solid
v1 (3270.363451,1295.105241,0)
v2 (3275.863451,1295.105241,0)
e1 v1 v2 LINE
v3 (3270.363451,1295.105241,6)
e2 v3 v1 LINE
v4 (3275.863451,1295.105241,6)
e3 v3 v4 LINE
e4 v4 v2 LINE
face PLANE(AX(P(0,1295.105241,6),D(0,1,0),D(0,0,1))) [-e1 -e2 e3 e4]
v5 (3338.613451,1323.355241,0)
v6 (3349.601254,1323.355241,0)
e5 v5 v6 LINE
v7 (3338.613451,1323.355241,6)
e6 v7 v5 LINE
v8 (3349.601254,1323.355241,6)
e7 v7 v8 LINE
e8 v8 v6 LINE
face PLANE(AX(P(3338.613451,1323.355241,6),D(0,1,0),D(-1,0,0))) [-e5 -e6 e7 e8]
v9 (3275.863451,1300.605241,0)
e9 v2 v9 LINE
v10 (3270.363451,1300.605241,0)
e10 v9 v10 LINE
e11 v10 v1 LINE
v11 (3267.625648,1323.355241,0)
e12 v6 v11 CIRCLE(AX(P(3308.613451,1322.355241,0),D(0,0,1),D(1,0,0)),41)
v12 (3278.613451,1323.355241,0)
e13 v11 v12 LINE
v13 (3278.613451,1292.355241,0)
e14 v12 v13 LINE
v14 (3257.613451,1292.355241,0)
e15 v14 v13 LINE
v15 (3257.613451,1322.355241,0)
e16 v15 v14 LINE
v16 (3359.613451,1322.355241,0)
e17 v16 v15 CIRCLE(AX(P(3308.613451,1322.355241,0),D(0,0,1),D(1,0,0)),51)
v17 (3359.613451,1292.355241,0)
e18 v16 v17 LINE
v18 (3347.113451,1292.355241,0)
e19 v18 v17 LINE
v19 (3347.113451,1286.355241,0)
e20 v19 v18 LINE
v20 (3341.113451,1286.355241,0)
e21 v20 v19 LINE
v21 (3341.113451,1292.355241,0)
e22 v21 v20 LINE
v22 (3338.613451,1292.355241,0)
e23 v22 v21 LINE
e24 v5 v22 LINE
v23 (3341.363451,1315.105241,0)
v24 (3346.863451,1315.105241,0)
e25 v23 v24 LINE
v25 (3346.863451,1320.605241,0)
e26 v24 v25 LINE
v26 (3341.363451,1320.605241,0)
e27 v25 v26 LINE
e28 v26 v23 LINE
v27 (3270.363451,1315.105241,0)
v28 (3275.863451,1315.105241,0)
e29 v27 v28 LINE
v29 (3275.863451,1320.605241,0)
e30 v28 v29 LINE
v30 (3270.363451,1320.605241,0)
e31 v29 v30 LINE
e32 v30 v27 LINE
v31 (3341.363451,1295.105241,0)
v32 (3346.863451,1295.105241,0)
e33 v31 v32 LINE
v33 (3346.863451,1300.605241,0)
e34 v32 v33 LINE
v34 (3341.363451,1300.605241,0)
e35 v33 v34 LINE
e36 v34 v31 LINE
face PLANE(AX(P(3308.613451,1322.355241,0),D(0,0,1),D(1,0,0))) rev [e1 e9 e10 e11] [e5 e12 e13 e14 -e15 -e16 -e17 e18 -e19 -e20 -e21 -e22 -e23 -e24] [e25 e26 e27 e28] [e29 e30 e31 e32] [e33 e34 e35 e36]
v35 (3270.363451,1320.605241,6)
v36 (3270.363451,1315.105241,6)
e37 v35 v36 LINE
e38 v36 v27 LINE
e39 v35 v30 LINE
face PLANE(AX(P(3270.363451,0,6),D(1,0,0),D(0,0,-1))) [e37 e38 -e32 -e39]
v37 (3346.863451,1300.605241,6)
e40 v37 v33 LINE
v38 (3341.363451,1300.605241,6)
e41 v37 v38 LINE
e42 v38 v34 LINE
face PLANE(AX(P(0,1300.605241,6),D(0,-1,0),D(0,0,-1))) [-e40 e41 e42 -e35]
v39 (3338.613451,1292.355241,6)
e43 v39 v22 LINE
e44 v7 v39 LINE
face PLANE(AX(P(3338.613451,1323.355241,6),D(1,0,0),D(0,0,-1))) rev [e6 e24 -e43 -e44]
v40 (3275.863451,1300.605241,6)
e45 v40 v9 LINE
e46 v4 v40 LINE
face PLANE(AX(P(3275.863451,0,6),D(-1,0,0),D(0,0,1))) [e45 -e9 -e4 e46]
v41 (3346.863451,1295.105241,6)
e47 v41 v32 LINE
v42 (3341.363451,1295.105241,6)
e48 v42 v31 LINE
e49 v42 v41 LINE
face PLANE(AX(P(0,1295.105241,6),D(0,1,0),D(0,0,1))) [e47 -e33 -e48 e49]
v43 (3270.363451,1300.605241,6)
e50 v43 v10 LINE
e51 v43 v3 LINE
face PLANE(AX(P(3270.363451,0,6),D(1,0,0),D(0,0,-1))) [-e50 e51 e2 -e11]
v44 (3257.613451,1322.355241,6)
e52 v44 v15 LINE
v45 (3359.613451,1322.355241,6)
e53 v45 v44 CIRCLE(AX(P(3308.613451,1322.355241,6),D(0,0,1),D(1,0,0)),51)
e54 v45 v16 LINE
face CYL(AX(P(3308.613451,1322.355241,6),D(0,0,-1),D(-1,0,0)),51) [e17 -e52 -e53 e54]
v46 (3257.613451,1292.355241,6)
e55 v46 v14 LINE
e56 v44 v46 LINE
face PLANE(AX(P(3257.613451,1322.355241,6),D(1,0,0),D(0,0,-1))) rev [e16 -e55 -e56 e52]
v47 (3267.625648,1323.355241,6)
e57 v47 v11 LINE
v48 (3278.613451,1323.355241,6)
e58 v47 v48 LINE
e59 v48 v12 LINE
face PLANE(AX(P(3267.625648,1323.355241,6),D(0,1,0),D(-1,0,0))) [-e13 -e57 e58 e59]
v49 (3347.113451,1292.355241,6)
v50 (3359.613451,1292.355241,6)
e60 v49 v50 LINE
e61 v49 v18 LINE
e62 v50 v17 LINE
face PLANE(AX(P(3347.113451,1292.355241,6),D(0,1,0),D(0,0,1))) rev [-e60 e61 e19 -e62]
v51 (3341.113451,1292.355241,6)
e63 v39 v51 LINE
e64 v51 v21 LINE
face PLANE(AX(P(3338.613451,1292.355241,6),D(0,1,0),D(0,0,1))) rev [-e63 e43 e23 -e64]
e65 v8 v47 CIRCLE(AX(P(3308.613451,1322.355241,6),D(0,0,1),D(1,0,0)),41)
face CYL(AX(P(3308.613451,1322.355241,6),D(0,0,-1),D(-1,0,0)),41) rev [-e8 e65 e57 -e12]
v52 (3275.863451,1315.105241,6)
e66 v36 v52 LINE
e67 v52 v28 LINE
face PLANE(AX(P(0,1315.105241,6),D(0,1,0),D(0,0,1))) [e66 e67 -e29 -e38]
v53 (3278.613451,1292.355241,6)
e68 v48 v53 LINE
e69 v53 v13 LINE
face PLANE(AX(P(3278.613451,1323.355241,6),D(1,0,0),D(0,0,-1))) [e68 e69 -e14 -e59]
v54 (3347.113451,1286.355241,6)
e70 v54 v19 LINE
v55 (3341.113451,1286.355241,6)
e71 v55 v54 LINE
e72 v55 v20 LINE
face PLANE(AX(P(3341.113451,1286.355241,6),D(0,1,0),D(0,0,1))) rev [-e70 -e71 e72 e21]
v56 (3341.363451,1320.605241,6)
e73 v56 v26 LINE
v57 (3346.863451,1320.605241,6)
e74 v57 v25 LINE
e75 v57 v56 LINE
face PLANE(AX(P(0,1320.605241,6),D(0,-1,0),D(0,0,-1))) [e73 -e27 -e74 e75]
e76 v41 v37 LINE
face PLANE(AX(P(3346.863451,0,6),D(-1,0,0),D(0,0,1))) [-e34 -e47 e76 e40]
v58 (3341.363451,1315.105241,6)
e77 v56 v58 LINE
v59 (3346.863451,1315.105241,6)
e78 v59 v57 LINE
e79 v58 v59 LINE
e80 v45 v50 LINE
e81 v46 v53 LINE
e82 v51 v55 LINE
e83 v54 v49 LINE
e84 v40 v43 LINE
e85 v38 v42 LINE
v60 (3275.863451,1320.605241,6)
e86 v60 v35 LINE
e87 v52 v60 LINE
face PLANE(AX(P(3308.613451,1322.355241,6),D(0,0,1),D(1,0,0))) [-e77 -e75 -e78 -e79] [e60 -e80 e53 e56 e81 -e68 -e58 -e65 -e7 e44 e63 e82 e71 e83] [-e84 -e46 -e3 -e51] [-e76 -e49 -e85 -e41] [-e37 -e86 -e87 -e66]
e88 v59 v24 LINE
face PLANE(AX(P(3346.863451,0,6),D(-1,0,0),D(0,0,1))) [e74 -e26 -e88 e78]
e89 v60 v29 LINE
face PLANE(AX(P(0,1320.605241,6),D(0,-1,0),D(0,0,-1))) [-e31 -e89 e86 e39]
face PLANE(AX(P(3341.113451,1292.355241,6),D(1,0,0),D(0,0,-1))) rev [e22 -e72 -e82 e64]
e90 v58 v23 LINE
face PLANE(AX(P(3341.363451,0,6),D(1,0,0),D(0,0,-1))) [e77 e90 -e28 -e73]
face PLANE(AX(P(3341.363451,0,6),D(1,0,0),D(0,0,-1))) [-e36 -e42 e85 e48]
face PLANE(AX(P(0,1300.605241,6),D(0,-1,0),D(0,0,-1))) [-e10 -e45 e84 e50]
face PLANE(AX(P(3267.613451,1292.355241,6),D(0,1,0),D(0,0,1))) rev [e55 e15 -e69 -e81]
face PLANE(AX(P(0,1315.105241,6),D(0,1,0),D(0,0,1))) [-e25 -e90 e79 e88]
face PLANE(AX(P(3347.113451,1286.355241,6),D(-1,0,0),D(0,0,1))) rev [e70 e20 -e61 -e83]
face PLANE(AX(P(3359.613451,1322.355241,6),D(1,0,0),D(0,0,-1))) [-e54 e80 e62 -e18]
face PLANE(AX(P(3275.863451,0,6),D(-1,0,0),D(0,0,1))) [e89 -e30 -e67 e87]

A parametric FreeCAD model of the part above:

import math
import FreeCAD as App
import Part
import Sketcher
Q = App.Units.Quantity

doc = App.newDocument("Part")
body = doc.addObject("PartDesign::Body", "Body")

sketch1 = doc.addObject("Sketcher::SketchObject", "Sketch")
body.addObject(sketch1)
sketch1.AttachmentSupport = (doc.XY_Plane, [""])
sketch1.MapMode = "FlatFace"
sketch1.addGeometry([
    Part.LineSegment(App.Vector(3257.6, 1322.4, 0), App.Vector(3257.6, 1292.4, 0)),
    Part.LineSegment(App.Vector(3257.6, 1292.4, 0), App.Vector(3278.6, 1292.4, 0)),
    Part.LineSegment(App.Vector(3278.6, 1292.4, 0), App.Vector(3278.6, 1323.4, 0)),
    Part.LineSegment(App.Vector(3278.6, 1323.4, 0), App.Vector(3267.6, 1323.4, 0)),
    Part.ArcOfCircle(Part.Circle(App.Vector(3308.6, 1322.4, 0), App.Vector(0, 0, 1), 41), math.radians(1), math.radians(179)),
    Part.LineSegment(App.Vector(3349.6, 1323.4, 0), App.Vector(3338.6, 1323.4, 0)),
    Part.LineSegment(App.Vector(3338.6, 1323.4, 0), App.Vector(3338.6, 1292.4, 0)),
    Part.LineSegment(App.Vector(3338.6, 1292.4, 0), App.Vector(3341.1, 1292.4, 0)),
    Part.LineSegment(App.Vector(3341.1, 1292.4, 0), App.Vector(3341.1, 1286.4, 0)),
    Part.LineSegment(App.Vector(3341.1, 1286.4, 0), App.Vector(3347.1, 1286.4, 0)),
    Part.LineSegment(App.Vector(3347.1, 1286.4, 0), App.Vector(3347.1, 1292.4, 0)),
    Part.LineSegment(App.Vector(3347.1, 1292.4, 0), App.Vector(3359.6, 1292.4, 0)),
    Part.LineSegment(App.Vector(3359.6, 1292.4, 0), App.Vector(3359.6, 1322.4, 0)),
    Part.ArcOfCircle(Part.Circle(App.Vector(3308.6, 1322.4, 0), App.Vector(0, 0, 1), 51), math.radians(0), math.radians(180)),
    Part.LineSegment(App.Vector(3275.9, 1295.1, 0), App.Vector(3270.4, 1295.1, 0)),
    Part.LineSegment(App.Vector(3270.4, 1295.1, 0), App.Vector(3270.4, 1300.6, 0)),
    Part.LineSegment(App.Vector(3270.4, 1300.6, 0), App.Vector(3275.9, 1300.6, 0)),
    Part.LineSegment(App.Vector(3275.9, 1300.6, 0), App.Vector(3275.9, 1295.1, 0)),
    Part.LineSegment(App.Vector(3346.9, 1295.1, 0), App.Vector(3341.4, 1295.1, 0)),
    Part.LineSegment(App.Vector(3341.4, 1295.1, 0), App.Vector(3341.4, 1300.6, 0)),
    Part.LineSegment(App.Vector(3341.4, 1300.6, 0), App.Vector(3346.9, 1300.6, 0)),
    Part.LineSegment(App.Vector(3346.9, 1300.6, 0), App.Vector(3346.9, 1295.1, 0)),
    Part.LineSegment(App.Vector(3275.9, 1315.1, 0), App.Vector(3270.4, 1315.1, 0)),
    Part.LineSegment(App.Vector(3270.4, 1315.1, 0), App.Vector(3270.4, 1320.6, 0)),
    Part.LineSegment(App.Vector(3270.4, 1320.6, 0), App.Vector(3275.9, 1320.6, 0)),
    Part.LineSegment(App.Vector(3275.9, 1320.6, 0), App.Vector(3275.9, 1315.1, 0)),
    Part.LineSegment(App.Vector(3346.9, 1315.1, 0), App.Vector(3341.4, 1315.1, 0)),
    Part.LineSegment(App.Vector(3341.4, 1315.1, 0), App.Vector(3341.4, 1320.6, 0)),
    Part.LineSegment(App.Vector(3341.4, 1320.6, 0), App.Vector(3346.9, 1320.6, 0)),
    Part.LineSegment(App.Vector(3346.9, 1320.6, 0), App.Vector(3346.9, 1315.1, 0)),
], False)
sketch1.addConstraint([
    Sketcher.Constraint("Coincident", 0, 2, 1, 1),
    Sketcher.Constraint("Coincident", 1, 2, 2, 1),
    Sketcher.Constraint("Coincident", 2, 2, 3, 1),
    Sketcher.Constraint("Coincident", 3, 2, 4, 2),
    Sketcher.Constraint("Coincident", 4, 1, 5, 1),
    Sketcher.Constraint("Coincident", 5, 2, 6, 1),
    Sketcher.Constraint("Coincident", 6, 2, 7, 1),
    Sketcher.Constraint("Coincident", 7, 2, 8, 1),
    Sketcher.Constraint("Coincident", 8, 2, 9, 1),
    Sketcher.Constraint("Coincident", 9, 2, 10, 1),
    Sketcher.Constraint("Coincident", 10, 2, 11, 1),
    Sketcher.Constraint("Coincident", 11, 2, 12, 1),
    Sketcher.Constraint("Tangent", 12, 2, 13, 1),
    Sketcher.Constraint("Tangent", 13, 2, 0, 1),
    Sketcher.Constraint("Coincident", 14, 2, 15, 1),
    Sketcher.Constraint("Coincident", 15, 2, 16, 1),
    Sketcher.Constraint("Coincident", 16, 2, 17, 1),
    Sketcher.Constraint("Coincident", 17, 2, 14, 1),
    Sketcher.Constraint("Coincident", 18, 2, 19, 1),
    Sketcher.Constraint("Coincident", 19, 2, 20, 1),
    Sketcher.Constraint("Coincident", 20, 2, 21, 1),
    Sketcher.Constraint("Coincident", 21, 2, 18, 1),
    Sketcher.Constraint("Coincident", 22, 2, 23, 1),
    Sketcher.Constraint("Coincident", 23, 2, 24, 1),
    Sketcher.Constraint("Coincident", 24, 2, 25, 1),
    Sketcher.Constraint("Coincident", 25, 2, 22, 1),
    Sketcher.Constraint("Coincident", 26, 2, 27, 1),
    Sketcher.Constraint("Coincident", 27, 2, 28, 1),
    Sketcher.Constraint("Coincident", 28, 2, 29, 1),
    Sketcher.Constraint("Coincident", 29, 2, 26, 1),
    Sketcher.Constraint("Vertical", 0),
    Sketcher.Constraint("Horizontal", 1),
    Sketcher.Constraint("Vertical", 2),
    Sketcher.Constraint("Horizontal", 3),
    Sketcher.Constraint("Horizontal", 5),
    Sketcher.Constraint("Vertical", 6),
    Sketcher.Constraint("Horizontal", 7),
    Sketcher.Constraint("Vertical", 8),
    Sketcher.Constraint("Horizontal", 9),
    Sketcher.Constraint("Vertical", 10),
    Sketcher.Constraint("Horizontal", 11),
    Sketcher.Constraint("Vertical", 12),
    Sketcher.Constraint("Horizontal", 14),
    Sketcher.Constraint("Vertical", 15),
    Sketcher.Constraint("Horizontal", 16),
    Sketcher.Constraint("Vertical", 17),
    Sketcher.Constraint("Horizontal", 18),
    Sketcher.Constraint("Vertical", 19),
    Sketcher.Constraint("Horizontal", 20),
    Sketcher.Constraint("Vertical", 21),
    Sketcher.Constraint("Horizontal", 22),
    Sketcher.Constraint("Vertical", 23),
    Sketcher.Constraint("Horizontal", 24),
    Sketcher.Constraint("Vertical", 25),
    Sketcher.Constraint("Horizontal", 26),
    Sketcher.Constraint("Vertical", 27),
    Sketcher.Constraint("Horizontal", 28),
    Sketcher.Constraint("Vertical", 29),
    Sketcher.Constraint("Coincident", 13, 3, 4, 3),
    Sketcher.Constraint("Horizontal", 3, 2, 4, 1),
    Sketcher.Constraint("Horizontal", 1, 2, 6, 2),
    Sketcher.Constraint("Horizontal", 7, 2, 10, 2),
    Sketcher.Constraint("Horizontal", 17, 2, 18, 2),
    Sketcher.Constraint("Horizontal", 16, 2, 19, 2),
    Sketcher.Constraint("Horizontal", 25, 2, 26, 2),
    Sketcher.Constraint("Horizontal", 24, 2, 27, 2),
    Sketcher.Constraint("Vertical", 15, 2, 22, 2),
    Sketcher.Constraint("Vertical", 17, 2, 24, 2),
    Sketcher.Constraint("Vertical", 19, 2, 26, 2),
    Sketcher.Constraint("Vertical", 21, 2, 28, 2),
    Sketcher.Constraint("Equal", 3, 5),
    Sketcher.Constraint("Equal", 16, 18),
    Sketcher.Constraint("Equal", 9, 8),
    Sketcher.Constraint("Equal", 28, 15),
    Sketcher.Constraint("Equal", 21, 23),
    Sketcher.Constraint("Radius", 4, Q("41 mm")),
    Sketcher.Constraint("Radius", 13, Q("51 mm")),
    Sketcher.Constraint("DistanceX", 1, 1, 1, 2, Q("21 mm")),
    Sketcher.Constraint("DistanceX", 9, 1, 9, 2, Q("6 mm")),
    Sketcher.Constraint("DistanceY", 0, 2, 0, 1, Q("30 mm")),
    Sketcher.Constraint("DistanceY", 2, 1, 2, 2, Q("31 mm")),
    Sketcher.Constraint("DistanceX", 7, 1, 7, 2, Q("2.5 mm")),
    Sketcher.Constraint("DistanceX", 14, 2, 14, 1, Q("5.5 mm")),
    Sketcher.Constraint("DistanceY", 15, 2, 23, 2, Q("20 mm")),
    Sketcher.Constraint("DistanceX", 14, 2, 1, 2, Q("8.25 mm")),
    Sketcher.Constraint("DistanceY", 1, 2, 14, 2, Q("2.75 mm")),
    Sketcher.Constraint("DistanceX", 7, 2, 18, 2, Q("0.25 mm")),
    Sketcher.Constraint("DistanceX", -1, 1, 4, 3, Q("3308.613451 mm")),
    Sketcher.Constraint("DistanceY", -1, 1, 4, 3, Q("1322.355241 mm")),
])
pad1 = doc.addObject("PartDesign::Pad", "Pad")
body.addObject(pad1)
pad1.Profile = sketch1
pad1.Length = 6

doc.recompute()
